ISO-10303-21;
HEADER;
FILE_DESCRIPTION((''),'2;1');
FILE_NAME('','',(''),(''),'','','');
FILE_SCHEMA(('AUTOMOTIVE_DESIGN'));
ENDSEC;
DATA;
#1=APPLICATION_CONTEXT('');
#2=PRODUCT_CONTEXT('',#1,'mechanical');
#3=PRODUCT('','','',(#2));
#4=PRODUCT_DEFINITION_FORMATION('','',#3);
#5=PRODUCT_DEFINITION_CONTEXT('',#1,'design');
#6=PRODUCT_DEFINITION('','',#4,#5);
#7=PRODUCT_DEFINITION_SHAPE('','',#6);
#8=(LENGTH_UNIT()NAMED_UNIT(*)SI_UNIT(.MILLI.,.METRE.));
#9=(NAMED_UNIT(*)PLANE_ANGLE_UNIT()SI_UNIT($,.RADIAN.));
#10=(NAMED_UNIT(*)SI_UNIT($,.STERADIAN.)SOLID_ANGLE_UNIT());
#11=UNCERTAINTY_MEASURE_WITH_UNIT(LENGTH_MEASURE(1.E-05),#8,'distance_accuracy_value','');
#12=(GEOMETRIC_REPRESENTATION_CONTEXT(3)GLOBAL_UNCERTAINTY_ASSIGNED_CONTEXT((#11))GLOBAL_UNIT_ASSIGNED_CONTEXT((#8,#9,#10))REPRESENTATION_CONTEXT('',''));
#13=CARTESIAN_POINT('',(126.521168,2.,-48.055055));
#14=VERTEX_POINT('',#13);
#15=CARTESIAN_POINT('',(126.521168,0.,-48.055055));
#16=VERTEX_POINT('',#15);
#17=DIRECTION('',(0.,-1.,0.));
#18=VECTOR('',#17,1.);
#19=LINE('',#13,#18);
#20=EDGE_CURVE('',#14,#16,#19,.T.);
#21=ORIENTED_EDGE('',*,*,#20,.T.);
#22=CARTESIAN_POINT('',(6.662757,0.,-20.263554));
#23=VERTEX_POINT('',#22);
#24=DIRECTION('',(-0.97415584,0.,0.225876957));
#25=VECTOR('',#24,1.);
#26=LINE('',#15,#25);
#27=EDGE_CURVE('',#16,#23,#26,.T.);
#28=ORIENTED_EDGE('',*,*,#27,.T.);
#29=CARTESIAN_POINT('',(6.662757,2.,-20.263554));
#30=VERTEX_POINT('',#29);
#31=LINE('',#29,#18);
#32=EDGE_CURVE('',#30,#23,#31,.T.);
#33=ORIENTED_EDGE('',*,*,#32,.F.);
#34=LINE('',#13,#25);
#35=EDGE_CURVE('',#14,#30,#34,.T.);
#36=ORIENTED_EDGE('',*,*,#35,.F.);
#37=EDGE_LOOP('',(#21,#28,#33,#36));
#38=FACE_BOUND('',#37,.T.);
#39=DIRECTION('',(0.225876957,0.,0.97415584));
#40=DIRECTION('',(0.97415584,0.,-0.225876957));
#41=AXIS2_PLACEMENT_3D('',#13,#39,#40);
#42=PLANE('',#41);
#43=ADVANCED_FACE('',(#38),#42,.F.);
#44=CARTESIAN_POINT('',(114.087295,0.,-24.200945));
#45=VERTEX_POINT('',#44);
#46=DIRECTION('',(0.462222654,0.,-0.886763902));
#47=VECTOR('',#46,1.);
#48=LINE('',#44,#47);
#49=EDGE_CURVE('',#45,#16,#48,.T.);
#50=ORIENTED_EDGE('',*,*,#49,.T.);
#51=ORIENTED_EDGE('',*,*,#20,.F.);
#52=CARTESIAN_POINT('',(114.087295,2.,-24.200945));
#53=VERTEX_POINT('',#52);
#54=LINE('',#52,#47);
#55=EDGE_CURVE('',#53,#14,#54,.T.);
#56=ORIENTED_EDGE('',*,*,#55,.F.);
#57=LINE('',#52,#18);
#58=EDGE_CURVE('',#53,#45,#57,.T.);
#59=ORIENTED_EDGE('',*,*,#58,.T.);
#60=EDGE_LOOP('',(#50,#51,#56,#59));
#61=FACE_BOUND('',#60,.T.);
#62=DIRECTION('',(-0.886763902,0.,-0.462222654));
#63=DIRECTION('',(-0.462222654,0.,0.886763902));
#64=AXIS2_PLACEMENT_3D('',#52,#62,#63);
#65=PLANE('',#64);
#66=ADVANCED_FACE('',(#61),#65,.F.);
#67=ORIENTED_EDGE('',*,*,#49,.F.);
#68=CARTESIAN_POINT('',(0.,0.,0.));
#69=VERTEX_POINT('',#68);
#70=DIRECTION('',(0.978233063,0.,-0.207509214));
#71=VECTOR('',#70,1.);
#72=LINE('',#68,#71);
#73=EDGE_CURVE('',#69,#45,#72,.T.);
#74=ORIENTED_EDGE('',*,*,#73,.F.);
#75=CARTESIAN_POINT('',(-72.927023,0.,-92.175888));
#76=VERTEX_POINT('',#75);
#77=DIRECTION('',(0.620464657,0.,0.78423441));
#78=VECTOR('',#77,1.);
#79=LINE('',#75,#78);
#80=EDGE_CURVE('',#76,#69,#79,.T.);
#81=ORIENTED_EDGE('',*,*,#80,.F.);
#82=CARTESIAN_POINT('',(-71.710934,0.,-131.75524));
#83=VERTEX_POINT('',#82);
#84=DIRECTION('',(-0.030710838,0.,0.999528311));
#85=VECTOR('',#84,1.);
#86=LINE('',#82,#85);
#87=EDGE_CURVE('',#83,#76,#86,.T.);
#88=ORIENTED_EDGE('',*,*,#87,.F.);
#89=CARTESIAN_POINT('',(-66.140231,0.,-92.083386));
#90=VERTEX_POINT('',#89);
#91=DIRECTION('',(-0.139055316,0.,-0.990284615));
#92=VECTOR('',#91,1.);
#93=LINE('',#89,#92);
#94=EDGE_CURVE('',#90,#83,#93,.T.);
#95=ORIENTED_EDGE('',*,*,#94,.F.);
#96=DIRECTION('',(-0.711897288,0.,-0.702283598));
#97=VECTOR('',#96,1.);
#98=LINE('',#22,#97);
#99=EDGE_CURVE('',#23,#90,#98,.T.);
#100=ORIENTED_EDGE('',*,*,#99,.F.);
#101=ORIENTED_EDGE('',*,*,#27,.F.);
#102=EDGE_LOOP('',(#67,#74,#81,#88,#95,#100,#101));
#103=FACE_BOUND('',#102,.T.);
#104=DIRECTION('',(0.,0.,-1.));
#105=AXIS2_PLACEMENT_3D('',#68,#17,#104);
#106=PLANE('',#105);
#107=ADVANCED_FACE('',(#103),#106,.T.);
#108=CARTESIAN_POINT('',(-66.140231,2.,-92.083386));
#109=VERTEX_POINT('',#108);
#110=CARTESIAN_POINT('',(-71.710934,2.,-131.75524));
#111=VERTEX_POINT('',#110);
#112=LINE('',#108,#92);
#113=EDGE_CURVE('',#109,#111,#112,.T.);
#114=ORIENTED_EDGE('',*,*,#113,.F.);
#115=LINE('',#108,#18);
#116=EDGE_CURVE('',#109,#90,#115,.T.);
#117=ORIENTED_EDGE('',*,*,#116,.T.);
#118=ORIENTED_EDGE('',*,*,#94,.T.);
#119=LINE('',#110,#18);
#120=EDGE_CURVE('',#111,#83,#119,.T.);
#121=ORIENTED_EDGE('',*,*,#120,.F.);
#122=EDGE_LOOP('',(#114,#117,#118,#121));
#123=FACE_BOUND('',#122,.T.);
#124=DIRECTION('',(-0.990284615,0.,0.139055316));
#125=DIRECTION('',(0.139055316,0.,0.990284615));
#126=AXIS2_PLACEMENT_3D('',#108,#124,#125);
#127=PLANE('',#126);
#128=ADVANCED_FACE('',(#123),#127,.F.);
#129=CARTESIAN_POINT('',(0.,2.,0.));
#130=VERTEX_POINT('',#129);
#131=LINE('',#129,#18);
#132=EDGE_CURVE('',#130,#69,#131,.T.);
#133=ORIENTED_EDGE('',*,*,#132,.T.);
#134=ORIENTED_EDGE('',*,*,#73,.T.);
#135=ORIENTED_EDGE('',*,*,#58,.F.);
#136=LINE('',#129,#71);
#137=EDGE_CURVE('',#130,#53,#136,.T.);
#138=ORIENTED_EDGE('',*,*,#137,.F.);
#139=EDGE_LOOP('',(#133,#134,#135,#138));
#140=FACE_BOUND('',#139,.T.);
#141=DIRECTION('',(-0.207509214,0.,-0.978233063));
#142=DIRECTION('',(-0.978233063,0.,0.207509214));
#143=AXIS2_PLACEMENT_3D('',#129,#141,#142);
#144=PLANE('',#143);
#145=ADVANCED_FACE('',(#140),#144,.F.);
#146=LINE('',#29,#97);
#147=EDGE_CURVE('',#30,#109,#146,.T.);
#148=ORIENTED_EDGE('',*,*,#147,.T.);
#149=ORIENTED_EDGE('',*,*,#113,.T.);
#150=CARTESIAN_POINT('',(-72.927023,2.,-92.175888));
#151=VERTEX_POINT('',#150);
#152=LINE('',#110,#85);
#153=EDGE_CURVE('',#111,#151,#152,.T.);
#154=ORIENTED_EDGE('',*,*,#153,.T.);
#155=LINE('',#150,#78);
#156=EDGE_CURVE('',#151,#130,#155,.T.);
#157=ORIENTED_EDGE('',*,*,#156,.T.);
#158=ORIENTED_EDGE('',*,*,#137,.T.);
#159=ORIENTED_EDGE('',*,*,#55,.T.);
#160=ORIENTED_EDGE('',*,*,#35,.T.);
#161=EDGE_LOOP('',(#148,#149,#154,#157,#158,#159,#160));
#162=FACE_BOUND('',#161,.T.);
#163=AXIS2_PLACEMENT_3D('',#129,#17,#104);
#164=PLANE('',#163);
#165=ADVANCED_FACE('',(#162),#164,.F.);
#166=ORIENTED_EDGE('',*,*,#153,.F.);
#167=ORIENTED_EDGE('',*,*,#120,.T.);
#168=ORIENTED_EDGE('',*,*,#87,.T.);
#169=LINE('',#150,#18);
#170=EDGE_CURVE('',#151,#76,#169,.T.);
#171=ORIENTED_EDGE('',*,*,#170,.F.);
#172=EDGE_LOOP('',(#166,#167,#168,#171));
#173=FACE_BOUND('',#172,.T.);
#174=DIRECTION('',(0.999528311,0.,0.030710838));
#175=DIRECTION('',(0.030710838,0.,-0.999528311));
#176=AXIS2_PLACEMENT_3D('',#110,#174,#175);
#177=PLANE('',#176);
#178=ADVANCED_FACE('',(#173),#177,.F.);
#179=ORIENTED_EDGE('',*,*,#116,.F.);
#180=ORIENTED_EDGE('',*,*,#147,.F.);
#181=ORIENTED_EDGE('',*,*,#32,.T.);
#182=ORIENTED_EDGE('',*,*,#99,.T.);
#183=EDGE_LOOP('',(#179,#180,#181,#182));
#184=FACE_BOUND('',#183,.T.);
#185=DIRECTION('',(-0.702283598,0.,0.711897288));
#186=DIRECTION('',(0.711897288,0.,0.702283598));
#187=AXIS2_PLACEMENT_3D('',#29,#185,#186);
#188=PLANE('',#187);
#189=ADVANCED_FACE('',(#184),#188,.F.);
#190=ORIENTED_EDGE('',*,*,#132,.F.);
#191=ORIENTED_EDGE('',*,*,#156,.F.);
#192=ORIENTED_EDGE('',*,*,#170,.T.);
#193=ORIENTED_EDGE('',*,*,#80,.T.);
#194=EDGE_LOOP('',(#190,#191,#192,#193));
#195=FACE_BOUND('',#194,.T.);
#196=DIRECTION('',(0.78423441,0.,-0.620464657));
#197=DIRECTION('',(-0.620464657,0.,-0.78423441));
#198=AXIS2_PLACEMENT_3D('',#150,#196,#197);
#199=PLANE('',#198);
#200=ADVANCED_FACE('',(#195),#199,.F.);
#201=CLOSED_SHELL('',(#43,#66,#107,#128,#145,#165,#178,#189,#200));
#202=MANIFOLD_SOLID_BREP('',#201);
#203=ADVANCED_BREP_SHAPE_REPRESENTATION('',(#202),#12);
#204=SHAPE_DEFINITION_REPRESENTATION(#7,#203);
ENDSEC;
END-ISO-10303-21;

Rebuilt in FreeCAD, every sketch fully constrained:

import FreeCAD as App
import Part
import Sketcher

V = App.Vector


def add_polygon(sketch, points):
    """Adds a closed chain of lines whose ends are joined by coincident constraints."""
    first, n = sketch.GeometryCount, len(points)
    for a, b in zip(points, points[1:] + points[:1]):
        sketch.addGeometry(Part.LineSegment(App.Vector(*a, 0), App.Vector(*b, 0)), False)
    for i in range(n):
        sketch.addConstraint(Sketcher.Constraint("Coincident", first + i, 2, first + (i + 1) % n, 1))

doc = App.newDocument("Part")
body = doc.addObject("PartDesign::Body", "Body")

sketch1 = body.newObject("Sketcher::SketchObject", "Sketch")
sketch1.AttachmentSupport = (doc.getObject("XZ_Plane"), [""])
sketch1.MapMode = "FlatFace"
add_polygon(sketch1, [(-72, -132), (-73, -92), (0, 0), (114, -24), (127, -48), (7, -20), (-66, -92)])
sketch1.addConstraint(Sketcher.Constraint("Coincident", 1, 2, -1, 1))
sketch1.addConstraint(Sketcher.Constraint("DistanceY", 3, 2, 4, 2, 27.791501))
sketch1.addConstraint(Sketcher.Constraint("DistanceX", 5, 2, 3, 2, 192.661399))
sketch1.addConstraint(Sketcher.Constraint("Distance", 0, 39.59803))
sketch1.addConstraint(Sketcher.Constraint("Distance", 3, 26.900181))
sketch1.addConstraint(Sketcher.Constraint("Distance", 4, 123.038232))
sketch1.addConstraint(Sketcher.Constraint("Distance", 5, 102.266139))
sketch1.addConstraint(Sketcher.Constraint("DistanceY", 0, 2, -1, 1, 92.175888))
sketch1.addConstraint(Sketcher.Constraint("DistanceX", -1, 1, 3, 2, 126.521168))
sketch1.addConstraint(Sketcher.Constraint("DistanceY", 6, 2, -1, 1, 131.75524))
sketch1.addConstraint(Sketcher.Constraint("DistanceX", 0, 2, 2, 2, 187.014318))
sketch1.addConstraint(Sketcher.Constraint("DistanceY", 3, 2, 2, 2, 23.85411))
sketch1.addConstraint(Sketcher.Constraint("Distance", 2, 116.625883))
pad1 = body.newObject("PartDesign::Pad", "Pad")
pad1.Profile = sketch1
pad1.Length = 2
pad1.Reversed = True

doc.recompute()
